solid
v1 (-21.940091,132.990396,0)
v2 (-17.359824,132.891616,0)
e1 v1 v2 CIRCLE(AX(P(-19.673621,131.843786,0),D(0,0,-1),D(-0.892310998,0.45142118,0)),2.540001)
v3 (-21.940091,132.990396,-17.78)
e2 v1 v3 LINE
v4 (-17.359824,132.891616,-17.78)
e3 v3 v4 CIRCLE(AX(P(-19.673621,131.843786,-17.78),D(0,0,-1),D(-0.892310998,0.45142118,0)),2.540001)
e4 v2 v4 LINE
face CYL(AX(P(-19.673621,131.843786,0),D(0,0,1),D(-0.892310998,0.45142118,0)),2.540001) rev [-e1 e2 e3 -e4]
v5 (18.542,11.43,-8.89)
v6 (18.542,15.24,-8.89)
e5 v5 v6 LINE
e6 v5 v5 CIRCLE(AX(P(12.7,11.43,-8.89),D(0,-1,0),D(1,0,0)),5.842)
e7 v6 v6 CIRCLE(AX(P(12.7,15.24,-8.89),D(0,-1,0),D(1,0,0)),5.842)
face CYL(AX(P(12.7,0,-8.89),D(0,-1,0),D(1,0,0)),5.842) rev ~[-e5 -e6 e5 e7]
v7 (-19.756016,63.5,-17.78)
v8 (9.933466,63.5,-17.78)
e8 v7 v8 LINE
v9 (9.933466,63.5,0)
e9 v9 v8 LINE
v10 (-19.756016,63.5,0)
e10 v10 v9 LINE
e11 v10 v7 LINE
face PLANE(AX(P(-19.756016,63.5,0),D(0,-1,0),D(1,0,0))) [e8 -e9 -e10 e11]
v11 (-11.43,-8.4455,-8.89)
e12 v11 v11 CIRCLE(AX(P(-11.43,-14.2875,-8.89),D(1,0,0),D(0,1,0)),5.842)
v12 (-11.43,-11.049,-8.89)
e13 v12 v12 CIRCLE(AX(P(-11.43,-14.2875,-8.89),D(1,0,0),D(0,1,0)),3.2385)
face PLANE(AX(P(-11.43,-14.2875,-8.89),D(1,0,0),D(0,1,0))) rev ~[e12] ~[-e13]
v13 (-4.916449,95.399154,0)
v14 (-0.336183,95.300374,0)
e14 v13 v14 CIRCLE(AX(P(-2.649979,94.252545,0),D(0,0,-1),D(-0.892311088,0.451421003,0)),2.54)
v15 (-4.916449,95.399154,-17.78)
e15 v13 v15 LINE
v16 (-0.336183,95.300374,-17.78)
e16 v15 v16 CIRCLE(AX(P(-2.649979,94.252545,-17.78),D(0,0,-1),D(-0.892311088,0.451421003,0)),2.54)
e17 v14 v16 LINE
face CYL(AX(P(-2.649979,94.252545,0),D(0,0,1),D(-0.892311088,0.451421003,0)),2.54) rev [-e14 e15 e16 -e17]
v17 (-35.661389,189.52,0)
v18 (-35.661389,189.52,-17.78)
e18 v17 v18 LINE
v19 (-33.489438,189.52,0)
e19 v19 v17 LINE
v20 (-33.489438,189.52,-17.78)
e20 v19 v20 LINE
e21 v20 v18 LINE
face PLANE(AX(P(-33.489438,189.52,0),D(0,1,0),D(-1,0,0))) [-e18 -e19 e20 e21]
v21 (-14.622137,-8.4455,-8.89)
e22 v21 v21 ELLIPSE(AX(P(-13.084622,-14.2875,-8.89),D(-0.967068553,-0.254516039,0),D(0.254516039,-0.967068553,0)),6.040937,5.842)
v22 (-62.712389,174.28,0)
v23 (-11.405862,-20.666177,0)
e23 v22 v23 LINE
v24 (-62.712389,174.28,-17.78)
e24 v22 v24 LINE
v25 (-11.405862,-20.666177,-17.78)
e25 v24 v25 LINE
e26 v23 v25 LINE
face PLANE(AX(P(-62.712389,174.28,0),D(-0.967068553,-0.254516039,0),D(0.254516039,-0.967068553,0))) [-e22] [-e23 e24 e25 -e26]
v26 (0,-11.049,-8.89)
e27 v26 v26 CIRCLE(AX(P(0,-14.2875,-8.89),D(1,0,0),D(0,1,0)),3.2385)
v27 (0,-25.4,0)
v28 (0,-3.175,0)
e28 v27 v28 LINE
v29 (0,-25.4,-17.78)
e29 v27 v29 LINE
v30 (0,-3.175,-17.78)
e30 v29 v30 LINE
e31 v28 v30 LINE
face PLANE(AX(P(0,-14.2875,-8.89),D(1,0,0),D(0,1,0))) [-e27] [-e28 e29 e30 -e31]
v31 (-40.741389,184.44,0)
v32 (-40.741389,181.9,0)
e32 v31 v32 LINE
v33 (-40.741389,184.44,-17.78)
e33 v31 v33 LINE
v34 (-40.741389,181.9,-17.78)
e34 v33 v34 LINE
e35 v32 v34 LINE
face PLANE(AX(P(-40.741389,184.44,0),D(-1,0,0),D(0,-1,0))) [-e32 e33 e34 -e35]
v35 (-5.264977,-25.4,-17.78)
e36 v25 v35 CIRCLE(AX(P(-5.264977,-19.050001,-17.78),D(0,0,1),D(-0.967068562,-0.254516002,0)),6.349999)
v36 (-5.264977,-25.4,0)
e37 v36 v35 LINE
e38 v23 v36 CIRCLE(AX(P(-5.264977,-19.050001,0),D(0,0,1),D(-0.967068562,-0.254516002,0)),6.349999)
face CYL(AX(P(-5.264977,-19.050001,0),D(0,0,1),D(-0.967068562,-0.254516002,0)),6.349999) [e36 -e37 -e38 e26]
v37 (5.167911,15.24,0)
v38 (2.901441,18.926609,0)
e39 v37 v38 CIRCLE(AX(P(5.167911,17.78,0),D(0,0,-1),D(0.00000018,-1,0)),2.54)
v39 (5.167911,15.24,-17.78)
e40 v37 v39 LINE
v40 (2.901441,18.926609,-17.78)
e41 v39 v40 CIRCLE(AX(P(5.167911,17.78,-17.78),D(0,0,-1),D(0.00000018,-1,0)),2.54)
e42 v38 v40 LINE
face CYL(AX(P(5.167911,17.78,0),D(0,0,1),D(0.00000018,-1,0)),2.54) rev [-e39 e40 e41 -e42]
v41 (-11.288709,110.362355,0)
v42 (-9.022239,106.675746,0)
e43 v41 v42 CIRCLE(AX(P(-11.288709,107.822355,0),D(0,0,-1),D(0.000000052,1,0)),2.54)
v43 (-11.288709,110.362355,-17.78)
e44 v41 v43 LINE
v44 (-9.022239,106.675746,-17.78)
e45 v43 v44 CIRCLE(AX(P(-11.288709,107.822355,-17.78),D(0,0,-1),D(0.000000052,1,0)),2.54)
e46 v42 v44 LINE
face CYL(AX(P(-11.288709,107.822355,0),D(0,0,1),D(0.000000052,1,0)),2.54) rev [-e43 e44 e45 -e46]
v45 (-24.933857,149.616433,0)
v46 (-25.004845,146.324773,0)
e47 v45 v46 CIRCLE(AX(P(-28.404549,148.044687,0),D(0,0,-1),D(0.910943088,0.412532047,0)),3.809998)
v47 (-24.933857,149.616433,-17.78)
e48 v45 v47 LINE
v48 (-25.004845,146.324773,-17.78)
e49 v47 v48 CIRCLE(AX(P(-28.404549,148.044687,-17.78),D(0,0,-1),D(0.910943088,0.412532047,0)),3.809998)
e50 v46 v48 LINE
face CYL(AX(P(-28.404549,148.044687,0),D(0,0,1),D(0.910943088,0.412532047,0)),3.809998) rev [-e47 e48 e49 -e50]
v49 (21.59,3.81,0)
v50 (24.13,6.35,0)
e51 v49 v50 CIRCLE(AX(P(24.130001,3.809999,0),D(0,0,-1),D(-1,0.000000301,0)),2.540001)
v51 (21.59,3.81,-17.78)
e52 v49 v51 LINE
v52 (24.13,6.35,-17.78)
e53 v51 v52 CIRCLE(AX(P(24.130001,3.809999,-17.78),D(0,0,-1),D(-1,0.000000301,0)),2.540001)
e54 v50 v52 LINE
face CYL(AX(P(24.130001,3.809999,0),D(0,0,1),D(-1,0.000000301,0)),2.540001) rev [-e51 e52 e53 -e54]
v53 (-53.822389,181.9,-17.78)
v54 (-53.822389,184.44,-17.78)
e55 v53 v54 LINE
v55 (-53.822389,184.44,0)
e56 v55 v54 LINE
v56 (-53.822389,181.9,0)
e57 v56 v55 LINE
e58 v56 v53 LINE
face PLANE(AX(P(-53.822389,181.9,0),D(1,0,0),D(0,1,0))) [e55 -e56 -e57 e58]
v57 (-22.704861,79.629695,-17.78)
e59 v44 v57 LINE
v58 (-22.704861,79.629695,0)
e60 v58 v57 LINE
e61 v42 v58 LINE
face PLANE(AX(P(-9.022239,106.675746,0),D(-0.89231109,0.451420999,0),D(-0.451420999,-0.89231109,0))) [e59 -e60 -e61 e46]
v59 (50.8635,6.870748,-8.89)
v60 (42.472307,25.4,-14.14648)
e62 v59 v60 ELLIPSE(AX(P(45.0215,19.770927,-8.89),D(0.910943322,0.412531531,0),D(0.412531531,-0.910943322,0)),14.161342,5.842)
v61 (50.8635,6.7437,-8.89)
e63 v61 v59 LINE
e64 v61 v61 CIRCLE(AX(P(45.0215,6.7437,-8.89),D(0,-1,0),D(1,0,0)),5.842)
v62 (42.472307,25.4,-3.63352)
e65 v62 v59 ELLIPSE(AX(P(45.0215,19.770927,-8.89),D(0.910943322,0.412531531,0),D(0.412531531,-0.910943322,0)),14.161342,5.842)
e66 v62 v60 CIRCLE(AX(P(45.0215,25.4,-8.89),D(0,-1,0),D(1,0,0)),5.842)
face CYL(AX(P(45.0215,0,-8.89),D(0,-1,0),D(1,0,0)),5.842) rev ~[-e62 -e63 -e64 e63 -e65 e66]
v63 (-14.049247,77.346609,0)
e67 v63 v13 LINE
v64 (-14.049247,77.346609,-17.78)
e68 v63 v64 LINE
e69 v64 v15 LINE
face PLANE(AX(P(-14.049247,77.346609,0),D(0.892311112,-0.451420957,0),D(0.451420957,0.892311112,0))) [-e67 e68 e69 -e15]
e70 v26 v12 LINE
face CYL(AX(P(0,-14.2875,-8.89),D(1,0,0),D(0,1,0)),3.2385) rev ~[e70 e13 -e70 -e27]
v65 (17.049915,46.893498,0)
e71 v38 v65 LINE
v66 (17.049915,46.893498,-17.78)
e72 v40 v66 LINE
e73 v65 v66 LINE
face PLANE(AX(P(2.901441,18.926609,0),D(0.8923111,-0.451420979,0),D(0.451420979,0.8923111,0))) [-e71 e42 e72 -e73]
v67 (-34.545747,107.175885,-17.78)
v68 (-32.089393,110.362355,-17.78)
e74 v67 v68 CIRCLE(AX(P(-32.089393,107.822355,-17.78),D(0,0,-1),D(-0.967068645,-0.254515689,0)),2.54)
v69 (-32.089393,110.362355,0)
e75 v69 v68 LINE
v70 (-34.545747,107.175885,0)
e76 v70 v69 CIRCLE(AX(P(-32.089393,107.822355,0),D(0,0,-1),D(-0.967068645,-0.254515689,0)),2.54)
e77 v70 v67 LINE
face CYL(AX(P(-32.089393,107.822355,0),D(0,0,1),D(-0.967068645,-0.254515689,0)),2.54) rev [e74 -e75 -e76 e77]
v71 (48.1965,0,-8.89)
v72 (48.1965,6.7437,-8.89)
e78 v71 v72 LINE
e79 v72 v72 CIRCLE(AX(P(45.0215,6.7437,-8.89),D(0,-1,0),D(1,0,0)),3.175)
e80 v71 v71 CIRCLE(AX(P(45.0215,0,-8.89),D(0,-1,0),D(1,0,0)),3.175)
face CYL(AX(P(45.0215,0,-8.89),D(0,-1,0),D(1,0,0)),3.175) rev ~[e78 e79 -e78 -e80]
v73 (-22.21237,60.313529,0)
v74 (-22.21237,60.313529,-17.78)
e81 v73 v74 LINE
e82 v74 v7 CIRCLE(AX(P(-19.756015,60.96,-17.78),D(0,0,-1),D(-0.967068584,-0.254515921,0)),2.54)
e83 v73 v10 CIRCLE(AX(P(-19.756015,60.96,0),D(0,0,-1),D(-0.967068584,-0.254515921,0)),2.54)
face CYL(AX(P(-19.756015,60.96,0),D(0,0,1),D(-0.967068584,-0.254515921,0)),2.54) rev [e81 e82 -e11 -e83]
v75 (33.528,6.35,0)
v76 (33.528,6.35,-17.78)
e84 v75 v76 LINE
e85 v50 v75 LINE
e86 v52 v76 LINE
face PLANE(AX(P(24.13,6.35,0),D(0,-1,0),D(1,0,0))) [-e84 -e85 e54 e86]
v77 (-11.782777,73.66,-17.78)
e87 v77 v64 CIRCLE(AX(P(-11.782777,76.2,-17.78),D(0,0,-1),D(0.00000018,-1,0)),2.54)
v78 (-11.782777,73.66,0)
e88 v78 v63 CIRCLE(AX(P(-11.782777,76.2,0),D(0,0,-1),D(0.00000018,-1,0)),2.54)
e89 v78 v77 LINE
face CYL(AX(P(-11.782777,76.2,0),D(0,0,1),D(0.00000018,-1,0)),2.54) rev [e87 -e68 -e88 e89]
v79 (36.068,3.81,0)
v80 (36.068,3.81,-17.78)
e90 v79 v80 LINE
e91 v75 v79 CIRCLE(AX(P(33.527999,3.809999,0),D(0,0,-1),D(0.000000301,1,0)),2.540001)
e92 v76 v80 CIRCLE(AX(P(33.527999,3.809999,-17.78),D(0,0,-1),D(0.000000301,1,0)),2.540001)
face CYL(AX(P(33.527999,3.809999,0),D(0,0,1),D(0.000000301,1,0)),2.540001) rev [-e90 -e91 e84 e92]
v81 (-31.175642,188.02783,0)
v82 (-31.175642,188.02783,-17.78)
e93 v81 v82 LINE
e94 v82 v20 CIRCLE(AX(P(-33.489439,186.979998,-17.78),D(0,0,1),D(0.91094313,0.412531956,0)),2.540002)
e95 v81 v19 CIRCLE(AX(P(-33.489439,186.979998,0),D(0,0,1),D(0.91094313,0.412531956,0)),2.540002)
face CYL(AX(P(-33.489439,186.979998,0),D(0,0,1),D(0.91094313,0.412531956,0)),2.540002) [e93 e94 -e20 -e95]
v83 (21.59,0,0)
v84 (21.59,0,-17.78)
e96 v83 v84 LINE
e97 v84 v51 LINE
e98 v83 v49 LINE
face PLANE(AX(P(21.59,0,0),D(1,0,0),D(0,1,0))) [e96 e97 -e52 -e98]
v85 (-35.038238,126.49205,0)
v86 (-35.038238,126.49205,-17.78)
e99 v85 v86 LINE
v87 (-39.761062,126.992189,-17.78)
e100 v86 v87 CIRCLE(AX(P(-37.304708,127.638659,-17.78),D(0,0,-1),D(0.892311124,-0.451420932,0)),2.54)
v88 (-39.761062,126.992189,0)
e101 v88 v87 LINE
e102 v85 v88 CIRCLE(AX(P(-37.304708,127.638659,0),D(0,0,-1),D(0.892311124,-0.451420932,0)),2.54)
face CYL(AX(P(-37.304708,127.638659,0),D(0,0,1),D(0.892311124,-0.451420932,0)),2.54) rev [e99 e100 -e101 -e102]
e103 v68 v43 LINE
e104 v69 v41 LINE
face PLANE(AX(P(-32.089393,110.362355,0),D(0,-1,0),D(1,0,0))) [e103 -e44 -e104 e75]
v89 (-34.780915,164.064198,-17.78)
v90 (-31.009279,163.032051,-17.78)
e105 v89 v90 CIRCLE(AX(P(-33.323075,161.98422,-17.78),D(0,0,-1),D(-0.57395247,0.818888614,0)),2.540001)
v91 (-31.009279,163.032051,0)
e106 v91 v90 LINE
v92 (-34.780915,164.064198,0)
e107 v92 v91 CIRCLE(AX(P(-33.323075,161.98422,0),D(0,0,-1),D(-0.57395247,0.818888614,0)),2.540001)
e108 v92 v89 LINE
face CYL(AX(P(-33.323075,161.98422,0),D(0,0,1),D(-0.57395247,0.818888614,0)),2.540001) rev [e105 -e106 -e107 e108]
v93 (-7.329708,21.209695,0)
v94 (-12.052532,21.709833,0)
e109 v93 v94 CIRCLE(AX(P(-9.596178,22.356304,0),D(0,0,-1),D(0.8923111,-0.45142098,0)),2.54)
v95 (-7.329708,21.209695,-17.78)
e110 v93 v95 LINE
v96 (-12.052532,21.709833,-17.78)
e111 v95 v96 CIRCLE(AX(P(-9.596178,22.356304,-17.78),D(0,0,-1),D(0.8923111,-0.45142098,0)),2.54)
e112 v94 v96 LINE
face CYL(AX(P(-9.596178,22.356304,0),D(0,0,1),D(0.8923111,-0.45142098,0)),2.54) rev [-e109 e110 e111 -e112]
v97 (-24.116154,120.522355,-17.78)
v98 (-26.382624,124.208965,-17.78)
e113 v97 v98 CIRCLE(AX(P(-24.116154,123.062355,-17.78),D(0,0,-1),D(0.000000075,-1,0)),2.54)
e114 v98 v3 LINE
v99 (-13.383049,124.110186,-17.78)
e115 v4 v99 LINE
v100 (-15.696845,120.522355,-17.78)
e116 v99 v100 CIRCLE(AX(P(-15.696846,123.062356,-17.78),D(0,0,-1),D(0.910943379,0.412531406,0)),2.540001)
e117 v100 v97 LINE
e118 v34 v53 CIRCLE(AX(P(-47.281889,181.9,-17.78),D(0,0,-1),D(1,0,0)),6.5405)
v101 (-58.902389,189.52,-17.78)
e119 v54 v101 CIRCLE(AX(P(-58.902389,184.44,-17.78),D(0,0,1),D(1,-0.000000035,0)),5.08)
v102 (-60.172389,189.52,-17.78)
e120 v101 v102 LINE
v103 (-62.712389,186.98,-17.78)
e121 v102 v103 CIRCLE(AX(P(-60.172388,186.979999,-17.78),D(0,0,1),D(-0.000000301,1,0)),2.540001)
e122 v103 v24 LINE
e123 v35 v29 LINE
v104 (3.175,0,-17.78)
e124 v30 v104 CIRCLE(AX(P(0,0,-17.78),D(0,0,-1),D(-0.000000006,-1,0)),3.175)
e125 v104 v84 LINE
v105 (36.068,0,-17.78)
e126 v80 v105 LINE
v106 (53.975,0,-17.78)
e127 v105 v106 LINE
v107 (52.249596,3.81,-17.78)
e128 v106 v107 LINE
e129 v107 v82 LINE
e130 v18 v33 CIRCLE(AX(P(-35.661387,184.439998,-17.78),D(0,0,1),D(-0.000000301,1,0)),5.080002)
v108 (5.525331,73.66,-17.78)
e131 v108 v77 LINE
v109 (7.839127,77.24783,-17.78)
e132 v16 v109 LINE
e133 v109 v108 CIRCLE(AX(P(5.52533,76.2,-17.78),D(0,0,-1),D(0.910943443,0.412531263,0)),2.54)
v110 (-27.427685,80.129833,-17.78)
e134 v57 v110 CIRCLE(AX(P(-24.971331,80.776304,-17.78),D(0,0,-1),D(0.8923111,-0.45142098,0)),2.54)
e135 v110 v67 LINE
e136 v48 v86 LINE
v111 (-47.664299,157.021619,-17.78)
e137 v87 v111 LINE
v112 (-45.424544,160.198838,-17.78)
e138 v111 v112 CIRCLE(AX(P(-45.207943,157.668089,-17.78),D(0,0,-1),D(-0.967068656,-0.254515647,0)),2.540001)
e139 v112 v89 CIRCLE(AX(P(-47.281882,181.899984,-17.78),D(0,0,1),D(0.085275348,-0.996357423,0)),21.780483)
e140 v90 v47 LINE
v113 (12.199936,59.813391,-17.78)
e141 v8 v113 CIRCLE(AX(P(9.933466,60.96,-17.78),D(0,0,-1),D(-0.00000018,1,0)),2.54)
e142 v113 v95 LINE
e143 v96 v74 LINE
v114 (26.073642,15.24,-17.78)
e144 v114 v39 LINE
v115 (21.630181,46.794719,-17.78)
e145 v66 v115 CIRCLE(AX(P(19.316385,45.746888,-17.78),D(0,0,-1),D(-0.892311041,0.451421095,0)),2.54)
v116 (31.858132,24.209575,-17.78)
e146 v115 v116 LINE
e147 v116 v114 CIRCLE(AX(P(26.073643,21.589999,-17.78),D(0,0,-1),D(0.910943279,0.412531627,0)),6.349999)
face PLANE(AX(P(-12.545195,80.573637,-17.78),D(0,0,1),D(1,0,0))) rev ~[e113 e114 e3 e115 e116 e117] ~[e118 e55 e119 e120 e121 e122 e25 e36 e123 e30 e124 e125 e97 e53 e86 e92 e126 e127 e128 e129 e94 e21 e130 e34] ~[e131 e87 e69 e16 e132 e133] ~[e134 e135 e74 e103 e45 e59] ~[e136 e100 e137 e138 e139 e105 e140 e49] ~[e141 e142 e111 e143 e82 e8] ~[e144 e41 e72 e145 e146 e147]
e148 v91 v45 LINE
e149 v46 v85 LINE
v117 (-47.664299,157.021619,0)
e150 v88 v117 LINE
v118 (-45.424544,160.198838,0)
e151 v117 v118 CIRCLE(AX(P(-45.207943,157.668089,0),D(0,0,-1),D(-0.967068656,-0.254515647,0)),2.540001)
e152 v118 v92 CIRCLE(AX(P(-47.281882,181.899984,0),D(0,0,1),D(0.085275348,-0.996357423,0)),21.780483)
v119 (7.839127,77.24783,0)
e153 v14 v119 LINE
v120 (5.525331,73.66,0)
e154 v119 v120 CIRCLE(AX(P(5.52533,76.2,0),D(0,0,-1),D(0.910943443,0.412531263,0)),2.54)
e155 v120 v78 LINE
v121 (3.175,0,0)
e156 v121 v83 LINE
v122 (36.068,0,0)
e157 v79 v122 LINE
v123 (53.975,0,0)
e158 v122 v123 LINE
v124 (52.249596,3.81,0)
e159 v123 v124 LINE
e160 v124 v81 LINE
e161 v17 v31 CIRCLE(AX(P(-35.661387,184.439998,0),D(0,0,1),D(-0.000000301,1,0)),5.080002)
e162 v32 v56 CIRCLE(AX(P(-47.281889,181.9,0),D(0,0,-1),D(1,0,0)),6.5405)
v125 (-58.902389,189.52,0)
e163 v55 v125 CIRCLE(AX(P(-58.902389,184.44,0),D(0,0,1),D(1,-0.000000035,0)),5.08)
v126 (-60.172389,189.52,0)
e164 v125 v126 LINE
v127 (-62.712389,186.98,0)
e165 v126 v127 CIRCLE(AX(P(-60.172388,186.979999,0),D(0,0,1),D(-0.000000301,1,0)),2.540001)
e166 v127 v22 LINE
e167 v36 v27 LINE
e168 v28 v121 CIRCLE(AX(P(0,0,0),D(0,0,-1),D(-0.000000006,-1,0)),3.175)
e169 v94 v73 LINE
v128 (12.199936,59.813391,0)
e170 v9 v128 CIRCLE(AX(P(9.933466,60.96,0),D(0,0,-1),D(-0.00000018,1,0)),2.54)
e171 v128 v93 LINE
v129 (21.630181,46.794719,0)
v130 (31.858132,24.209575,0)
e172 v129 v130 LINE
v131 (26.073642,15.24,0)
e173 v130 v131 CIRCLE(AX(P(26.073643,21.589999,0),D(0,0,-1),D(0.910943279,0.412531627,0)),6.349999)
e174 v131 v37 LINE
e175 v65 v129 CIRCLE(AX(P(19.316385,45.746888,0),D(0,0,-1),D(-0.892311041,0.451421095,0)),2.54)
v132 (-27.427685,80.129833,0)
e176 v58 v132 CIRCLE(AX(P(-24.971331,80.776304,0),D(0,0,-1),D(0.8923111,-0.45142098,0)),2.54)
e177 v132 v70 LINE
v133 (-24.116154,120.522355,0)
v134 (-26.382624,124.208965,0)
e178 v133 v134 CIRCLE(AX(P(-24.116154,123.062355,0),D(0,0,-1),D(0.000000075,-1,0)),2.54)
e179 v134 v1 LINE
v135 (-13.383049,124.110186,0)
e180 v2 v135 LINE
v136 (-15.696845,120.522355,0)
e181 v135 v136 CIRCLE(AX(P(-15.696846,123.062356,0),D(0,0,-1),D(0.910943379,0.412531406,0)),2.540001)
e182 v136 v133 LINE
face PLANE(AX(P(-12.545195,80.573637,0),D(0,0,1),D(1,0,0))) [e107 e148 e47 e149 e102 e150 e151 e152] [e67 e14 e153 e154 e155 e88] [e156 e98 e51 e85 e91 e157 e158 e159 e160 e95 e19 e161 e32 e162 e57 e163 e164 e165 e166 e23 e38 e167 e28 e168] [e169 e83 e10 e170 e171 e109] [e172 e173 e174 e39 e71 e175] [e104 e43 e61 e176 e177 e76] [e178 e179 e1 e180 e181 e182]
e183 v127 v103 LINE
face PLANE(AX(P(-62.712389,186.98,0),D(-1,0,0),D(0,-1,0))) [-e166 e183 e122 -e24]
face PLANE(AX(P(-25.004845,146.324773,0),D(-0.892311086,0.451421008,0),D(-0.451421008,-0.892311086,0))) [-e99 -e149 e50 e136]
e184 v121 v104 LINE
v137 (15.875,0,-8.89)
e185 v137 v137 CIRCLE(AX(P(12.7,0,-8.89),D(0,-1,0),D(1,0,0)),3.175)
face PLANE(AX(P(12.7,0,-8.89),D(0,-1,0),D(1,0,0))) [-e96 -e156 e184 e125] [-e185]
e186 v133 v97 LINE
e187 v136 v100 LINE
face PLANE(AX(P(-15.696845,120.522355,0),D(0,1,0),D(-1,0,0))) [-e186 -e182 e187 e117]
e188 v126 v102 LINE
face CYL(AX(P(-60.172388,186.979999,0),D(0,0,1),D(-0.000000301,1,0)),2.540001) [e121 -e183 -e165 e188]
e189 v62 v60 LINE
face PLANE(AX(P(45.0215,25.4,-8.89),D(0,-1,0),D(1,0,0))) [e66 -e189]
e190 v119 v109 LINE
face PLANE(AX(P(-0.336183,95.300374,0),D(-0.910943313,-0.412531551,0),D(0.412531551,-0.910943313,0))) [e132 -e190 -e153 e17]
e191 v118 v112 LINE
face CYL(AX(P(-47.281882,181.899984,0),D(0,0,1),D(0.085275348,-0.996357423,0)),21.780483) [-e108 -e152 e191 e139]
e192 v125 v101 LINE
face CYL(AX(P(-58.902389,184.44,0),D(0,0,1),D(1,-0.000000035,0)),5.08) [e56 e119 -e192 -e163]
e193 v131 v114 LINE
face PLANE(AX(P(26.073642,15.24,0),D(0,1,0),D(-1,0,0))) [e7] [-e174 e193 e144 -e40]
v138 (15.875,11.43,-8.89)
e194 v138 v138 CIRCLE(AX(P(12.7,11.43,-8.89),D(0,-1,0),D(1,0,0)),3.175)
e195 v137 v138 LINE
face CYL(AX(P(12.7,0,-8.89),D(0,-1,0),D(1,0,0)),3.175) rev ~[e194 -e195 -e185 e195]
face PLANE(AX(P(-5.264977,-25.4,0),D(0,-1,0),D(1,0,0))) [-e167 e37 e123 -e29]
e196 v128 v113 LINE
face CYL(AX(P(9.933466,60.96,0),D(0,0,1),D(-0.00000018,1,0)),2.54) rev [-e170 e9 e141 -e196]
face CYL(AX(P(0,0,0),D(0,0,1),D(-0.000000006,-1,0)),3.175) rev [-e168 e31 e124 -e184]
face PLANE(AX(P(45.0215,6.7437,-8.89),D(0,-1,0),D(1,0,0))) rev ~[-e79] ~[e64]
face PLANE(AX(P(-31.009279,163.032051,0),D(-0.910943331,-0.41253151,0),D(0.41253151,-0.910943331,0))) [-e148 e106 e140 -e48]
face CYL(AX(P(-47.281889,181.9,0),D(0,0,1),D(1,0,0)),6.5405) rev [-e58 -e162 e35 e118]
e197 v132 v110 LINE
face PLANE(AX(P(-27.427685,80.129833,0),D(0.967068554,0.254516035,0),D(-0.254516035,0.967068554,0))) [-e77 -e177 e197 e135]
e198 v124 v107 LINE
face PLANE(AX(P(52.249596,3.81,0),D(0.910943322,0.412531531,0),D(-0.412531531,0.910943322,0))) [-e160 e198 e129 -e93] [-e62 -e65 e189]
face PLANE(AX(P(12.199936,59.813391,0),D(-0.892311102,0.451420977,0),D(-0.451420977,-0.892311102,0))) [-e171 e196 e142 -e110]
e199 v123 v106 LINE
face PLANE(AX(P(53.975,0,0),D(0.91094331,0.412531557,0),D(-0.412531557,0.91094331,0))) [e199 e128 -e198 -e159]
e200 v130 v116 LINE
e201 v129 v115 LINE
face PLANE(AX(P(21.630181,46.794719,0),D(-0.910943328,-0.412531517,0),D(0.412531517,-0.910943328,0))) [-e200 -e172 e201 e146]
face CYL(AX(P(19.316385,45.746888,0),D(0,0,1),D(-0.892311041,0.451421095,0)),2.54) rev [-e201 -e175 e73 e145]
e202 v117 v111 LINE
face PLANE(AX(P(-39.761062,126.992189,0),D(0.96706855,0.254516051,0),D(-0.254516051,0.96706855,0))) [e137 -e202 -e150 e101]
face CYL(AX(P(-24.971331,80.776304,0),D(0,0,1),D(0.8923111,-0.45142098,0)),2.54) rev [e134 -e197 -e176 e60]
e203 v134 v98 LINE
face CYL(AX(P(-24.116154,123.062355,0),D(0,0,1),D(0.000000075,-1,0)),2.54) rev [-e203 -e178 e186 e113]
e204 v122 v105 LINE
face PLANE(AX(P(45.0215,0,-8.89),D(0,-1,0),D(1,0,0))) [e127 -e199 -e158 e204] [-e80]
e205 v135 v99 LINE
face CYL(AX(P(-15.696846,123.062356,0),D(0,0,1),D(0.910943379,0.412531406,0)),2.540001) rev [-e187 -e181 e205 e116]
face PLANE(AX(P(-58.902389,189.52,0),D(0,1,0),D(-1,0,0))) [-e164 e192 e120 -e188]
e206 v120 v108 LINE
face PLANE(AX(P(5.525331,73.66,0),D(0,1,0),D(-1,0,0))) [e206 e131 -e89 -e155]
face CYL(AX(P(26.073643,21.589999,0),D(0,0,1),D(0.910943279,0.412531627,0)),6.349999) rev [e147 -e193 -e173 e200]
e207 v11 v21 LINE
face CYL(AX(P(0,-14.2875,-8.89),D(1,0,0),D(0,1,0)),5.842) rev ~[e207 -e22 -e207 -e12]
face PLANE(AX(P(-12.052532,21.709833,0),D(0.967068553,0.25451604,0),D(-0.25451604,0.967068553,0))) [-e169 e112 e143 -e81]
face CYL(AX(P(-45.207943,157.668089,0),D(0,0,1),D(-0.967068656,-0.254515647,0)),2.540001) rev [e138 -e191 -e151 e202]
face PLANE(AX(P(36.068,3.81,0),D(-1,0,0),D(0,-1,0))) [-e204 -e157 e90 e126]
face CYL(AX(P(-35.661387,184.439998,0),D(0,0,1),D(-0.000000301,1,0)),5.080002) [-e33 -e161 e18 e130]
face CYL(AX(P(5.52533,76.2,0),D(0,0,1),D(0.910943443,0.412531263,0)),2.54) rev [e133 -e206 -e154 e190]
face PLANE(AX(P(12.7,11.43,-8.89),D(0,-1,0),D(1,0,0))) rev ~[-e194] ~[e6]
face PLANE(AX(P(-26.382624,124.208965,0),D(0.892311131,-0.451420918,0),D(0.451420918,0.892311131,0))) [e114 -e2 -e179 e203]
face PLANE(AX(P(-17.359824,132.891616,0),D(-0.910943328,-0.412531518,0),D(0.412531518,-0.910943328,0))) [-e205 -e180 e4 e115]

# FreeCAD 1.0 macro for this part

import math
import FreeCAD as App
import Part
import Sketcher
Q = App.Units.Quantity

doc = App.newDocument("Part")
body = doc.addObject("PartDesign::Body", "Body")

# Sketch on XY plane
sketch1 = body.newObject("Sketcher::SketchObject", "Sketch")
sketch1.AttachmentSupport = (doc.getObject("XY_Plane"), [""])
sketch1.MapMode = "FlatFace"
sketch1.addGeometry(Part.ArcOfCircle(Part.Circle(App.Vector(-47.3, 181.9, 0), App.Vector(0, 0, 1), 6.5), math.radians(180), math.radians(360)), False)
sketch1.addGeometry(Part.LineSegment(App.Vector(-53.8, 181.9, 0), App.Vector(-53.8, 184.4, 0)), False)
sketch1.addGeometry(Part.ArcOfCircle(Part.Circle(App.Vector(-58.9, 184.4, 0), App.Vector(0, 0, 1), 5.1), math.radians(0), math.radians(90)), False)
sketch1.addGeometry(Part.LineSegment(App.Vector(-58.9, 189.5, 0), App.Vector(-60.2, 189.5, 0)), False)
sketch1.addGeometry(Part.ArcOfCircle(Part.Circle(App.Vector(-60.2, 187, 0), App.Vector(0, 0, 1), 2.5), math.radians(90), math.radians(180)), False)
sketch1.addGeometry(Part.LineSegment(App.Vector(-62.7, 187, 0), App.Vector(-62.7, 174.3, 0)), False)
sketch1.addGeometry(Part.LineSegment(App.Vector(-62.7, 174.3, 0), App.Vector(-11.4, -20.7, 0)), False)
sketch1.addGeometry(Part.ArcOfCircle(Part.Circle(App.Vector(-5.3, -19.1, 0), App.Vector(0, 0, 1), 6.3), math.radians(-165), math.radians(-90)), False)
sketch1.addGeometry(Part.LineSegment(App.Vector(-5.3, -25.4, 0), App.Vector(0, -25.4, 0)), False)
sketch1.addGeometry(Part.LineSegment(App.Vector(0, -25.4, 0), App.Vector(0, -3.2, 0)), False)
sketch1.addGeometry(Part.ArcOfCircle(Part.Circle(App.Vector(0, 0, 0), App.Vector(0, 0, 1), 3.2), math.radians(0), math.radians(270)), False)
sketch1.addGeometry(Part.LineSegment(App.Vector(3.2, 0, 0), App.Vector(21.6, 0, 0)), False)
sketch1.addGeometry(Part.LineSegment(App.Vector(21.6, 0, 0), App.Vector(21.6, 3.8, 0)), False)
sketch1.addGeometry(Part.ArcOfCircle(Part.Circle(App.Vector(24.1, 3.8, 0), App.Vector(0, 0, 1), 2.5), math.radians(90), math.radians(180)), False)
sketch1.addGeometry(Part.LineSegment(App.Vector(24.1, 6.3, 0), App.Vector(33.5, 6.3, 0)), False)
sketch1.addGeometry(Part.ArcOfCircle(Part.Circle(App.Vector(33.5, 3.8, 0), App.Vector(0, 0, 1), 2.5), math.radians(0), math.radians(90)), False)
sketch1.addGeometry(Part.LineSegment(App.Vector(36.1, 3.8, 0), App.Vector(36.1, 0, 0)), False)
sketch1.addGeometry(Part.LineSegment(App.Vector(36.1, 0, 0), App.Vector(54, 0, 0)), False)
sketch1.addGeometry(Part.LineSegment(App.Vector(54, 0, 0), App.Vector(52.2, 3.8, 0)), False)
sketch1.addGeometry(Part.LineSegment(App.Vector(52.2, 3.8, 0), App.Vector(-31.2, 188, 0)), False)
sketch1.addGeometry(Part.ArcOfCircle(Part.Circle(App.Vector(-33.5, 187, 0), App.Vector(0, 0, 1), 2.5), math.radians(24), math.radians(90)), False)
sketch1.addGeometry(Part.LineSegment(App.Vector(-33.5, 189.5, 0), App.Vector(-35.7, 189.5, 0)), False)
sketch1.addGeometry(Part.ArcOfCircle(Part.Circle(App.Vector(-35.7, 184.4, 0), App.Vector(0, 0, 1), 5.1), math.radians(90), math.radians(180)), False)
sketch1.addGeometry(Part.LineSegment(App.Vector(-40.7, 184.4, 0), App.Vector(-40.7, 181.9, 0)), False)
sketch1.addGeometry(Part.ArcOfCircle(Part.Circle(App.Vector(9.9, 61, 0), App.Vector(0, 0, 1), 2.5), math.radians(-27), math.radians(90)), False)
sketch1.addGeometry(Part.LineSegment(App.Vector(12.2, 59.8, 0), App.Vector(-7.3, 21.2, 0)), False)
sketch1.addGeometry(Part.ArcOfCircle(Part.Circle(App.Vector(-9.6, 22.4, 0), App.Vector(0, 0, 1), 2.5), math.radians(-165), math.radians(-27)), False)
sketch1.addGeometry(Part.LineSegment(App.Vector(-12.1, 21.7, 0), App.Vector(-22.2, 60.3, 0)), False)
sketch1.addGeometry(Part.ArcOfCircle(Part.Circle(App.Vector(-19.8, 61, 0), App.Vector(0, 0, 1), 2.5), math.radians(90), math.radians(195)), False)
sketch1.addGeometry(Part.LineSegment(App.Vector(-19.8, 63.5, 0), App.Vector(9.9, 63.5, 0)), False)
sketch1.addGeometry(Part.ArcOfCircle(Part.Circle(App.Vector(26.1, 21.6, 0), App.Vector(0, 0, 1), 6.3), math.radians(-90), math.radians(24)), False)
sketch1.addGeometry(Part.LineSegment(App.Vector(26.1, 15.2, 0), App.Vector(5.2, 15.2, 0)), False)
sketch1.addGeometry(Part.ArcOfCircle(Part.Circle(App.Vector(5.2, 17.8, 0), App.Vector(0, 0, 1), 2.5), math.radians(153), math.radians(270)), False)
sketch1.addGeometry(Part.LineSegment(App.Vector(2.9, 18.9, 0), App.Vector(17, 46.9, 0)), False)
sketch1.addGeometry(Part.ArcOfCircle(Part.Circle(App.Vector(19.3, 45.7, 0), App.Vector(0, 0, 1), 2.5), math.radians(24), math.radians(153)), False)
sketch1.addGeometry(Part.LineSegment(App.Vector(21.6, 46.8, 0), App.Vector(31.9, 24.2, 0)), False)
sketch1.addGeometry(Part.ArcOfCircle(Part.Circle(App.Vector(5.5, 76.2, 0), App.Vector(0, 0, 1), 2.5), math.radians(-90), math.radians(24)), False)
sketch1.addGeometry(Part.LineSegment(App.Vector(5.5, 73.7, 0), App.Vector(-11.8, 73.7, 0)), False)
sketch1.addGeometry(Part.ArcOfCircle(Part.Circle(App.Vector(-11.8, 76.2, 0), App.Vector(0, 0, 1), 2.5), math.radians(153), math.radians(270)), False)
sketch1.addGeometry(Part.LineSegment(App.Vector(-14, 77.3, 0), App.Vector(-4.9, 95.4, 0)), False)
sketch1.addGeometry(Part.ArcOfCircle(Part.Circle(App.Vector(-2.6, 94.3, 0), App.Vector(0, 0, 1), 2.5), math.radians(24), math.radians(153)), False)
sketch1.addGeometry(Part.LineSegment(App.Vector(-0.3, 95.3, 0), App.Vector(7.8, 77.2, 0)), False)
sketch1.addGeometry(Part.ArcOfCircle(Part.Circle(App.Vector(-11.3, 107.8, 0), App.Vector(0, 0, 1), 2.5), math.radians(-27), math.radians(90)), False)
sketch1.addGeometry(Part.LineSegment(App.Vector(-9, 106.7, 0), App.Vector(-22.7, 79.6, 0)), False)
sketch1.addGeometry(Part.ArcOfCircle(Part.Circle(App.Vector(-25, 80.8, 0), App.Vector(0, 0, 1), 2.5), math.radians(-165), math.radians(-27)), False)
sketch1.addGeometry(Part.LineSegment(App.Vector(-27.4, 80.1, 0), App.Vector(-34.5, 107.2, 0)), False)
sketch1.addGeometry(Part.ArcOfCircle(Part.Circle(App.Vector(-32.1, 107.8, 0), App.Vector(0, 0, 1), 2.5), math.radians(90), math.radians(195)), False)
sketch1.addGeometry(Part.LineSegment(App.Vector(-32.1, 110.4, 0), App.Vector(-11.3, 110.4, 0)), False)
sketch1.addGeometry(Part.ArcOfCircle(Part.Circle(App.Vector(-37.3, 127.6, 0), App.Vector(0, 0, 1), 2.5), math.radians(-165), math.radians(-27)), False)
sketch1.addGeometry(Part.LineSegment(App.Vector(-39.8, 127, 0), App.Vector(-47.7, 157, 0)), False)
sketch1.addGeometry(Part.ArcOfCircle(Part.Circle(App.Vector(-45.2, 157.7, 0), App.Vector(0, 0, 1), 2.5), math.radians(95), math.radians(195)), False)
sketch1.addGeometry(Part.ArcOfCircle(Part.Circle(App.Vector(-47.3, 181.9, 0), App.Vector(0, 0, 1), 21.8), math.radians(-85), math.radians(-55)), False)
sketch1.addGeometry(Part.ArcOfCircle(Part.Circle(App.Vector(-33.3, 162, 0), App.Vector(0, 0, 1), 2.5), math.radians(24), math.radians(125)), False)
sketch1.addGeometry(Part.LineSegment(App.Vector(-31, 163, 0), App.Vector(-24.9, 149.6, 0)), False)
sketch1.addGeometry(Part.ArcOfCircle(Part.Circle(App.Vector(-28.4, 148, 0), App.Vector(0, 0, 1), 3.8), math.radians(-27), math.radians(24)), False)
sketch1.addGeometry(Part.LineSegment(App.Vector(-25, 146.3, 0), App.Vector(-35, 126.5, 0)), False)
sketch1.addGeometry(Part.LineSegment(App.Vector(-17.4, 132.9, 0), App.Vector(-13.4, 124.1, 0)), False)
sketch1.addGeometry(Part.ArcOfCircle(Part.Circle(App.Vector(-15.7, 123.1, 0), App.Vector(0, 0, 1), 2.5), math.radians(-90), math.radians(24)), False)
sketch1.addGeometry(Part.LineSegment(App.Vector(-15.7, 120.5, 0), App.Vector(-24.1, 120.5, 0)), False)
sketch1.addGeometry(Part.ArcOfCircle(Part.Circle(App.Vector(-24.1, 123.1, 0), App.Vector(0, 0, 1), 2.5), math.radians(153), math.radians(270)), False)
sketch1.addGeometry(Part.LineSegment(App.Vector(-26.4, 124.2, 0), App.Vector(-21.9, 133, 0)), False)
sketch1.addGeometry(Part.ArcOfCircle(Part.Circle(App.Vector(-19.7, 131.8, 0), App.Vector(0, 0, 1), 2.5), math.radians(24), math.radians(153)), False)
sketch1.addConstraint(Sketcher.Constraint("Tangent", 0, 1, 1, 1))
sketch1.addConstraint(Sketcher.Constraint("Tangent", 1, 2, 2, 1))
sketch1.addConstraint(Sketcher.Constraint("Tangent", 2, 2, 3, 1))
sketch1.addConstraint(Sketcher.Constraint("Tangent", 3, 2, 4, 1))
sketch1.addConstraint(Sketcher.Constraint("Tangent", 4, 2, 5, 1))
sketch1.addConstraint(Sketcher.Constraint("Coincident", 5, 2, 6, 1))
sketch1.addConstraint(Sketcher.Constraint("Tangent", 6, 2, 7, 1))
sketch1.addConstraint(Sketcher.Constraint("Tangent", 7, 2, 8, 1))
sketch1.addConstraint(Sketcher.Constraint("Coincident", 8, 2, 9, 1))
sketch1.addConstraint(Sketcher.Constraint("Coincident", 9, 2, 10, 2))
sketch1.addConstraint(Sketcher.Constraint("Coincident", 10, 1, 11, 1))
sketch1.addConstraint(Sketcher.Constraint("Coincident", 11, 2, 12, 1))
sketch1.addConstraint(Sketcher.Constraint("Tangent", 12, 2, 13, 2))
sketch1.addConstraint(Sketcher.Constraint("Tangent", 13, 1, 14, 1))
sketch1.addConstraint(Sketcher.Constraint("Tangent", 14, 2, 15, 2))
sketch1.addConstraint(Sketcher.Constraint("Tangent", 15, 1, 16, 1))
sketch1.addConstraint(Sketcher.Constraint("Coincident", 16, 2, 17, 1))
sketch1.addConstraint(Sketcher.Constraint("Coincident", 17, 2, 18, 1))
sketch1.addConstraint(Sketcher.Constraint("Coincident", 18, 2, 19, 1))
sketch1.addConstraint(Sketcher.Constraint("Tangent", 19, 2, 20, 1))
sketch1.addConstraint(Sketcher.Constraint("Tangent", 20, 2, 21, 1))
sketch1.addConstraint(Sketcher.Constraint("Tangent", 21, 2, 22, 1))
sketch1.addConstraint(Sketcher.Constraint("Tangent", 22, 2, 23, 1))
sketch1.addConstraint(Sketcher.Constraint("Tangent", 23, 2, 0, 2))
sketch1.addConstraint(Sketcher.Constraint("Tangent", 24, 1, 25, 1))
sketch1.addConstraint(Sketcher.Constraint("Tangent", 25, 2, 26, 2))
sketch1.addConstraint(Sketcher.Constraint("Tangent", 26, 1, 27, 1))
sketch1.addConstraint(Sketcher.Constraint("Tangent", 27, 2, 28, 2))
sketch1.addConstraint(Sketcher.Constraint("Tangent", 28, 1, 29, 1))
sketch1.addConstraint(Sketcher.Constraint("Tangent", 29, 2, 24, 2))
sketch1.addConstraint(Sketcher.Constraint("Tangent", 30, 1, 31, 1))
sketch1.addConstraint(Sketcher.Constraint("Tangent", 31, 2, 32, 2))
sketch1.addConstraint(Sketcher.Constraint("Tangent", 32, 1, 33, 1))
sketch1.addConstraint(Sketcher.Constraint("Tangent", 33, 2, 34, 2))
sketch1.addConstraint(Sketcher.Constraint("Tangent", 34, 1, 35, 1))
sketch1.addConstraint(Sketcher.Constraint("Tangent", 35, 2, 30, 2))
sketch1.addConstraint(Sketcher.Constraint("Tangent", 36, 1, 37, 1))
sketch1.addConstraint(Sketcher.Constraint("Tangent", 37, 2, 38, 2))
sketch1.addConstraint(Sketcher.Constraint("Tangent", 38, 1, 39, 1))
sketch1.addConstraint(Sketcher.Constraint("Tangent", 39, 2, 40, 2))
sketch1.addConstraint(Sketcher.Constraint("Tangent", 40, 1, 41, 1))
sketch1.addConstraint(Sketcher.Constraint("Tangent", 41, 2, 36, 2))
sketch1.addConstraint(Sketcher.Constraint("Tangent", 42, 1, 43, 1))
sketch1.addConstraint(Sketcher.Constraint("Tangent", 43, 2, 44, 2))
sketch1.addConstraint(Sketcher.Constraint("Tangent", 44, 1, 45, 1))
sketch1.addConstraint(Sketcher.Constraint("Tangent", 45, 2, 46, 2))
sketch1.addConstraint(Sketcher.Constraint("Tangent", 46, 1, 47, 1))
sketch1.addConstraint(Sketcher.Constraint("Tangent", 47, 2, 42, 2))
sketch1.addConstraint(Sketcher.Constraint("Tangent", 48, 1, 49, 1))
sketch1.addConstraint(Sketcher.Constraint("Tangent", 49, 2, 50, 2))
sketch1.addConstraint(Sketcher.Constraint("Tangent", 50, 1, 51, 1))
sketch1.addConstraint(Sketcher.Constraint("Tangent", 51, 2, 52, 2))
sketch1.addConstraint(Sketcher.Constraint("Tangent", 52, 1, 53, 1))
sketch1.addConstraint(Sketcher.Constraint("Tangent", 53, 2, 54, 2))
sketch1.addConstraint(Sketcher.Constraint("Tangent", 54, 1, 55, 1))
sketch1.addConstraint(Sketcher.Constraint("Tangent", 55, 2, 48, 2))
sketch1.addConstraint(Sketcher.Constraint("Tangent", 56, 2, 57, 2))
sketch1.addConstraint(Sketcher.Constraint("Tangent", 57, 1, 58, 1))
sketch1.addConstraint(Sketcher.Constraint("Tangent", 58, 2, 59, 2))
sketch1.addConstraint(Sketcher.Constraint("Tangent", 59, 1, 60, 1))
sketch1.addConstraint(Sketcher.Constraint("Tangent", 60, 2, 61, 2))
sketch1.addConstraint(Sketcher.Constraint("Tangent", 61, 1, 56, 1))
sketch1.addConstraint(Sketcher.Constraint("Vertical", 1))
sketch1.addConstraint(Sketcher.Constraint("Horizontal", 3))
sketch1.addConstraint(Sketcher.Constraint("Vertical", 5))
sketch1.addConstraint(Sketcher.Constraint("Horizontal", 8))
sketch1.addConstraint(Sketcher.Constraint("Vertical", 9))
sketch1.addConstraint(Sketcher.Constraint("Horizontal", 11))
sketch1.addConstraint(Sketcher.Constraint("Vertical", 12))
sketch1.addConstraint(Sketcher.Constraint("Horizontal", 14))
sketch1.addConstraint(Sketcher.Constraint("Vertical", 16))
sketch1.addConstraint(Sketcher.Constraint("Horizontal", 17))
sketch1.addConstraint(Sketcher.Constraint("Horizontal", 21))
sketch1.addConstraint(Sketcher.Constraint("Vertical", 23))
sketch1.addConstraint(Sketcher.Constraint("Horizontal", 29))
sketch1.addConstraint(Sketcher.Constraint("Horizontal", 31))
sketch1.addConstraint(Sketcher.Constraint("Horizontal", 37))
sketch1.addConstraint(Sketcher.Constraint("Horizontal", 47))
sketch1.addConstraint(Sketcher.Constraint("Horizontal", 58))
sketch1.addConstraint(Sketcher.Constraint("Coincident", 10, 3, -1, 1))
sketch1.addConstraint(Sketcher.Constraint("Equal", 4, 13))
sketch1.addConstraint(Sketcher.Constraint("Equal", 13, 15))
sketch1.addConstraint(Sketcher.Constraint("Equal", 15, 20))
sketch1.addConstraint(Sketcher.Constraint("Equal", 2, 22))
sketch1.addConstraint(Sketcher.Constraint("Equal", 15, 24))
sketch1.addConstraint(Sketcher.Constraint("Equal", 24, 26))
sketch1.addConstraint(Sketcher.Constraint("Equal", 26, 28))
sketch1.addConstraint(Sketcher.Constraint("Equal", 7, 30))
sketch1.addConstraint(Sketcher.Constraint("Equal", 28, 32))
sketch1.addConstraint(Sketcher.Constraint("Equal", 32, 34))
sketch1.addConstraint(Sketcher.Constraint("Equal", 34, 36))
sketch1.addConstraint(Sketcher.Constraint("Equal", 36, 38))
sketch1.addConstraint(Sketcher.Constraint("Equal", 38, 40))
sketch1.addConstraint(Sketcher.Constraint("Equal", 40, 42))
sketch1.addConstraint(Sketcher.Constraint("Equal", 42, 44))
sketch1.addConstraint(Sketcher.Constraint("Equal", 44, 46))
sketch1.addConstraint(Sketcher.Constraint("Equal", 46, 48))
sketch1.addConstraint(Sketcher.Constraint("Equal", 48, 50))
sketch1.addConstraint(Sketcher.Constraint("Equal", 50, 52))
sketch1.addConstraint(Sketcher.Constraint("Equal", 52, 57))
sketch1.addConstraint(Sketcher.Constraint("Equal", 57, 59))
sketch1.addConstraint(Sketcher.Constraint("Equal", 59, 61))
sketch1.addConstraint(Sketcher.Constraint("PointOnObject", 8, 2, -2))
sketch1.addConstraint(Sketcher.Constraint("PointOnObject", 10, 1, -1))
sketch1.addConstraint(Sketcher.Constraint("PointOnObject", 16, 2, -1))
sketch1.addConstraint(Sketcher.Constraint("Parallel", 18, 19))
sketch1.addConstraint(Sketcher.Constraint("Parallel", 6, 27))
sketch1.addConstraint(Sketcher.Constraint("Parallel", 25, 33))
sketch1.addConstraint(Sketcher.Constraint("Parallel", 19, 35))
sketch1.addConstraint(Sketcher.Constraint("Parallel", 33, 39))
sketch1.addConstraint(Sketcher.Constraint("Parallel", 35, 41))
sketch1.addConstraint(Sketcher.Constraint("Parallel", 39, 43))
sketch1.addConstraint(Sketcher.Constraint("Parallel", 27, 45))
sketch1.addConstraint(Sketcher.Constraint("Parallel", 45, 49))
sketch1.addConstraint(Sketcher.Constraint("Parallel", 41, 53))
sketch1.addConstraint(Sketcher.Constraint("Parallel", 43, 55))
sketch1.addConstraint(Sketcher.Constraint("Parallel", 53, 56))
sketch1.addConstraint(Sketcher.Constraint("Parallel", 55, 60))
sketch1.addConstraint(Sketcher.Constraint("Horizontal", 4, 3, 20, 3))
sketch1.addConstraint(Sketcher.Constraint("Horizontal", 15, 1, 18, 2))
sketch1.addConstraint(Sketcher.Constraint("Radius", 2, Q("0.2 in")))
sketch1.addConstraint(Sketcher.Constraint("Radius", 4, Q("0.1 in")))
sketch1.addConstraint(Sketcher.Constraint("Radius", 7, Q("0.25 in")))
sketch1.addConstraint(Sketcher.Constraint("Radius", 54, Q("0.1499999 in")))
sketch1.addConstraint(Sketcher.Constraint("DistanceY", 1, 1, 1, 2, Q("0.1 in")))
sketch1.addConstraint(Sketcher.Constraint("DistanceY", 5, 2, 5, 1, Q("0.5 in")))
sketch1.addConstraint(Sketcher.Constraint("DistanceY", -1, 1, 36, 3, Q("3 in")))
sketch1.addConstraint(Sketcher.Constraint("DistanceY", 7, 2, -1, 1, Q("1 in")))
sketch1.addConstraint(Sketcher.Constraint("Radius", 10, Q("0.125 in")))
sketch1.addConstraint(Sketcher.Constraint("DistanceX", 3, 2, 3, 1, Q("0.05 in")))
sketch1.addConstraint(Sketcher.Constraint("DistanceX", 14, 1, 14, 2, Q("0.37 in")))
sketch1.addConstraint(Sketcher.Constraint("DistanceY", 12, 1, 12, 2, Q("0.15 in")))
sketch1.addConstraint(Sketcher.Constraint("DistanceY", -1, 1, 24, 3, Q("2.4 in")))
sketch1.addConstraint(Sketcher.Constraint("DistanceY", -1, 1, 32, 3, Q("0.7 in")))
sketch1.addConstraint(Sketcher.Constraint("Radius", 0, Q("0.2575 in")))
sketch1.addConstraint(Sketcher.Constraint("DistanceX", 11, 1, 11, 2, Q("0.725 in")))
sketch1.addConstraint(Sketcher.Constraint("DistanceX", 17, 1, 17, 2, Q("0.705 in")))
sketch1.addConstraint(Sketcher.Constraint("Radius", 51, Q("21.780483 mm")))
sketch1.addConstraint(Sketcher.Constraint("DistanceX", 21, 2, 21, 1, Q("2.171951 mm")))
sketch1.addConstraint(Sketcher.Constraint("DistanceX", 29, 1, 29, 2, Q("29.689482 mm")))
sketch1.addConstraint(Sketcher.Constraint("DistanceX", 31, 2, 31, 1, Q("20.905731 mm")))
sketch1.addConstraint(Sketcher.Constraint("DistanceX", 37, 2, 37, 1, Q("17.308108 mm")))
sketch1.addConstraint(Sketcher.Constraint("DistanceX", 58, 2, 58, 1, Q("8.419309 mm")))
sketch1.addConstraint(Sketcher.Constraint("DistanceY", -1, 1, 0, 3, Q("181.9 mm")))
sketch1.addConstraint(Sketcher.Constraint("DistanceX", 49, 2, -1, 1, Q("47.664299 mm")))
sketch1.addConstraint(Sketcher.Constraint("Distance", 6, Q("201.584651 mm")))
sketch1.addConstraint(Sketcher.Constraint("Distance", 35, Q("24.793138 mm")))
sketch1.addConstraint(Sketcher.Constraint("Distance", 53, Q("14.727171 mm")))
sketch1.addConstraint(Sketcher.Constraint("Distance", 60, Q("9.841221 mm")))
sketch1.addConstraint(Sketcher.Constraint("DistanceX", 47, 1, 47, 2, Q("20.800684 mm")))
sketch1.addConstraint(Sketcher.Constraint("DistanceX", 26, 3, -1, 1, Q("9.596178 mm")))
sketch1.addConstraint(Sketcher.Constraint("DistanceX", -1, 1, 32, 3, Q("5.167911 mm")))
sketch1.addConstraint(Sketcher.Constraint("DistanceX", -1, 1, 36, 3, Q("5.52533 mm")))
sketch1.addConstraint(Sketcher.Constraint("DistanceX", 42, 3, -1, 1, Q("11.288709 mm")))
sketch1.addConstraint(Sketcher.Constraint("DistanceY", -1, 1, 48, 3, Q("127.638659 mm")))
sketch1.addConstraint(Sketcher.Constraint("DistanceY", -1, 1, 50, 3, Q("157.668089 mm")))
sketch1.addConstraint(Sketcher.Constraint("DistanceY", -1, 1, 52, 3, Q("161.98422 mm")))
sketch1.addConstraint(Sketcher.Constraint("DistanceX", 61, 3, -1, 1, Q("19.673621 mm")))
sketch1.addConstraint(Sketcher.Constraint("DistanceY", -1, 1, 42, 3, Q("107.822355 mm")))
sketch1.addConstraint(Sketcher.Constraint("DistanceY", -1, 1, 57, 3, Q("123.062356 mm")))
pad1 = body.newObject("PartDesign::Pad", "Pad")
pad1.Profile = sketch1
pad1.Length = Q("0.7 in")
pad1.Reversed = True

# Sketch on YZ plane
sketch2 = body.newObject("Sketcher::SketchObject", "Sketch001")
sketch2.AttachmentSupport = (doc.getObject("YZ_Plane"), [""])
sketch2.MapMode = "FlatFace"
sketch2.addGeometry(Part.Circle(App.Vector(-14, -9, 0), App.Vector(0, 0, 1), 6), False)
sketch2.addConstraint(Sketcher.Constraint("Diameter", 0, Q("0.46 in")))
sketch2.addConstraint(Sketcher.Constraint("DistanceY", 0, 3, -1, 1, Q("0.35 in")))
sketch2.addConstraint(Sketcher.Constraint("DistanceX", 0, 3, -1, 1, Q("0.5625 in")))
pocket1 = body.newObject("PartDesign::Pocket", "Pocket")
pocket1.Profile = sketch2
pocket1.Length = Q("1 in")

# Sketch on XZ plane
sketch3 = body.newObject("Sketcher::SketchObject", "Sketch002")
sketch3.AttachmentSupport = (doc.getObject("XZ_Plane"), [""])
sketch3.MapMode = "FlatFace"
sketch3.addGeometry(Part.Circle(App.Vector(13, -9, 0), App.Vector(0, 0, 1), 6), False)
sketch3.addGeometry(Part.Circle(App.Vector(45, -9, 0), App.Vector(0, 0, 1), 6), False)
sketch3.addConstraint(Sketcher.Constraint("Equal", 0, 1))
sketch3.addConstraint(Sketcher.Constraint("Horizontal", 0, 3, 1, 3))
sketch3.addConstraint(Sketcher.Constraint("Diameter", 0, Q("0.46 in")))
sketch3.addConstraint(Sketcher.Constraint("DistanceX", -1, 1, 0, 3, Q("0.5 in")))
sketch3.addConstraint(Sketcher.Constraint("DistanceY", 0, 3, -1, 1, Q("0.35 in")))
sketch3.addConstraint(Sketcher.Constraint("DistanceX", -1, 1, 1, 3, Q("1.7725 in")))
pocket2 = body.newObject("PartDesign::Pocket", "Pocket001")
pocket2.Profile = sketch3
pocket2.Length = Q("1 in")

# Sketch on XZ plane
sketch4 = body.newObject("Sketcher::SketchObject", "Sketch003")
sketch4.AttachmentSupport = (doc.getObject("XZ_Plane"), [""])
sketch4.MapMode = "FlatFace"
sketch4.addGeometry(Part.Circle(App.Vector(12.7, -8.9, 0), App.Vector(0, 0, 1), 5.8), False)
sketch4.addGeometry(Part.Circle(App.Vector(12.7, -8.9, 0), App.Vector(0, 0, 1), 3.2), False)
sketch4.addConstraint(Sketcher.Constraint("Coincident", 1, 3, 0, 3))
sketch4.addConstraint(Sketcher.Constraint("Diameter", 0, Q("0.46 in")))
sketch4.addConstraint(Sketcher.Constraint("Diameter", 1, Q("0.25 in")))
sketch4.addConstraint(Sketcher.Constraint("DistanceX", -1, 1, 0, 3, Q("0.5 in")))
sketch4.addConstraint(Sketcher.Constraint("DistanceY", 0, 3, -1, 1, Q("0.35 in")))
pad2 = body.newObject("PartDesign::Pad", "Pad001")
pad2.Profile = sketch4
pad2.Length = Q("0.45 in")
pad2.Reversed = True

# Sketch on XZ plane
sketch5 = body.newObject("Sketcher::SketchObject", "Sketch004")
sketch5.AttachmentSupport = (doc.getObject("XZ_Plane"), [""])
sketch5.MapMode = "FlatFace"
sketch5.addGeometry(Part.Circle(App.Vector(45, -8.9, 0), App.Vector(0, 0, 1), 5.8), False)
sketch5.addGeometry(Part.Circle(App.Vector(45, -8.9, 0), App.Vector(0, 0, 1), 3.2), False)
sketch5.addConstraint(Sketcher.Constraint("Coincident", 1, 3, 0, 3))
sketch5.addConstraint(Sketcher.Constraint("Diameter", 0, Q("0.46 in")))
sketch5.addConstraint(Sketcher.Constraint("Diameter", 1, Q("0.25 in")))
sketch5.addConstraint(Sketcher.Constraint("DistanceY", 0, 3, -1, 1, Q("0.35 in")))
sketch5.addConstraint(Sketcher.Constraint("DistanceX", -1, 1, 0, 3, Q("1.7725 in")))
pad3 = body.newObject("PartDesign::Pad", "Pad002")
pad3.Profile = sketch5
pad3.Length = Q("0.2655 in")
pad3.Reversed = True

# Sketch on YZ plane
sketch6 = body.newObject("Sketcher::SketchObject", "Sketch005")
sketch6.AttachmentSupport = (doc.getObject("YZ_Plane"), [""])
sketch6.MapMode = "FlatFace"
sketch6.addGeometry(Part.Circle(App.Vector(-14.3, -8.9, 0), App.Vector(0, 0, 1), 5.8), False)
sketch6.addGeometry(Part.Circle(App.Vector(-14.3, -8.9, 0), App.Vector(0, 0, 1), 3.2), False)
sketch6.addConstraint(Sketcher.Constraint("Coincident", 1, 3, 0, 3))
sketch6.addConstraint(Sketcher.Constraint("Diameter", 0, Q("0.46 in")))
sketch6.addConstraint(Sketcher.Constraint("Diameter", 1, Q("0.255 in")))
sketch6.addConstraint(Sketcher.Constraint("DistanceY", 0, 3, -1, 1, Q("0.35 in")))
sketch6.addConstraint(Sketcher.Constraint("DistanceX", 0, 3, -1, 1, Q("0.5625 in")))
pad4 = body.newObject("PartDesign::Pad", "Pad003")
pad4.Profile = sketch6
pad4.Length = Q("0.45 in")
pad4.Reversed = True

doc.recompute()
